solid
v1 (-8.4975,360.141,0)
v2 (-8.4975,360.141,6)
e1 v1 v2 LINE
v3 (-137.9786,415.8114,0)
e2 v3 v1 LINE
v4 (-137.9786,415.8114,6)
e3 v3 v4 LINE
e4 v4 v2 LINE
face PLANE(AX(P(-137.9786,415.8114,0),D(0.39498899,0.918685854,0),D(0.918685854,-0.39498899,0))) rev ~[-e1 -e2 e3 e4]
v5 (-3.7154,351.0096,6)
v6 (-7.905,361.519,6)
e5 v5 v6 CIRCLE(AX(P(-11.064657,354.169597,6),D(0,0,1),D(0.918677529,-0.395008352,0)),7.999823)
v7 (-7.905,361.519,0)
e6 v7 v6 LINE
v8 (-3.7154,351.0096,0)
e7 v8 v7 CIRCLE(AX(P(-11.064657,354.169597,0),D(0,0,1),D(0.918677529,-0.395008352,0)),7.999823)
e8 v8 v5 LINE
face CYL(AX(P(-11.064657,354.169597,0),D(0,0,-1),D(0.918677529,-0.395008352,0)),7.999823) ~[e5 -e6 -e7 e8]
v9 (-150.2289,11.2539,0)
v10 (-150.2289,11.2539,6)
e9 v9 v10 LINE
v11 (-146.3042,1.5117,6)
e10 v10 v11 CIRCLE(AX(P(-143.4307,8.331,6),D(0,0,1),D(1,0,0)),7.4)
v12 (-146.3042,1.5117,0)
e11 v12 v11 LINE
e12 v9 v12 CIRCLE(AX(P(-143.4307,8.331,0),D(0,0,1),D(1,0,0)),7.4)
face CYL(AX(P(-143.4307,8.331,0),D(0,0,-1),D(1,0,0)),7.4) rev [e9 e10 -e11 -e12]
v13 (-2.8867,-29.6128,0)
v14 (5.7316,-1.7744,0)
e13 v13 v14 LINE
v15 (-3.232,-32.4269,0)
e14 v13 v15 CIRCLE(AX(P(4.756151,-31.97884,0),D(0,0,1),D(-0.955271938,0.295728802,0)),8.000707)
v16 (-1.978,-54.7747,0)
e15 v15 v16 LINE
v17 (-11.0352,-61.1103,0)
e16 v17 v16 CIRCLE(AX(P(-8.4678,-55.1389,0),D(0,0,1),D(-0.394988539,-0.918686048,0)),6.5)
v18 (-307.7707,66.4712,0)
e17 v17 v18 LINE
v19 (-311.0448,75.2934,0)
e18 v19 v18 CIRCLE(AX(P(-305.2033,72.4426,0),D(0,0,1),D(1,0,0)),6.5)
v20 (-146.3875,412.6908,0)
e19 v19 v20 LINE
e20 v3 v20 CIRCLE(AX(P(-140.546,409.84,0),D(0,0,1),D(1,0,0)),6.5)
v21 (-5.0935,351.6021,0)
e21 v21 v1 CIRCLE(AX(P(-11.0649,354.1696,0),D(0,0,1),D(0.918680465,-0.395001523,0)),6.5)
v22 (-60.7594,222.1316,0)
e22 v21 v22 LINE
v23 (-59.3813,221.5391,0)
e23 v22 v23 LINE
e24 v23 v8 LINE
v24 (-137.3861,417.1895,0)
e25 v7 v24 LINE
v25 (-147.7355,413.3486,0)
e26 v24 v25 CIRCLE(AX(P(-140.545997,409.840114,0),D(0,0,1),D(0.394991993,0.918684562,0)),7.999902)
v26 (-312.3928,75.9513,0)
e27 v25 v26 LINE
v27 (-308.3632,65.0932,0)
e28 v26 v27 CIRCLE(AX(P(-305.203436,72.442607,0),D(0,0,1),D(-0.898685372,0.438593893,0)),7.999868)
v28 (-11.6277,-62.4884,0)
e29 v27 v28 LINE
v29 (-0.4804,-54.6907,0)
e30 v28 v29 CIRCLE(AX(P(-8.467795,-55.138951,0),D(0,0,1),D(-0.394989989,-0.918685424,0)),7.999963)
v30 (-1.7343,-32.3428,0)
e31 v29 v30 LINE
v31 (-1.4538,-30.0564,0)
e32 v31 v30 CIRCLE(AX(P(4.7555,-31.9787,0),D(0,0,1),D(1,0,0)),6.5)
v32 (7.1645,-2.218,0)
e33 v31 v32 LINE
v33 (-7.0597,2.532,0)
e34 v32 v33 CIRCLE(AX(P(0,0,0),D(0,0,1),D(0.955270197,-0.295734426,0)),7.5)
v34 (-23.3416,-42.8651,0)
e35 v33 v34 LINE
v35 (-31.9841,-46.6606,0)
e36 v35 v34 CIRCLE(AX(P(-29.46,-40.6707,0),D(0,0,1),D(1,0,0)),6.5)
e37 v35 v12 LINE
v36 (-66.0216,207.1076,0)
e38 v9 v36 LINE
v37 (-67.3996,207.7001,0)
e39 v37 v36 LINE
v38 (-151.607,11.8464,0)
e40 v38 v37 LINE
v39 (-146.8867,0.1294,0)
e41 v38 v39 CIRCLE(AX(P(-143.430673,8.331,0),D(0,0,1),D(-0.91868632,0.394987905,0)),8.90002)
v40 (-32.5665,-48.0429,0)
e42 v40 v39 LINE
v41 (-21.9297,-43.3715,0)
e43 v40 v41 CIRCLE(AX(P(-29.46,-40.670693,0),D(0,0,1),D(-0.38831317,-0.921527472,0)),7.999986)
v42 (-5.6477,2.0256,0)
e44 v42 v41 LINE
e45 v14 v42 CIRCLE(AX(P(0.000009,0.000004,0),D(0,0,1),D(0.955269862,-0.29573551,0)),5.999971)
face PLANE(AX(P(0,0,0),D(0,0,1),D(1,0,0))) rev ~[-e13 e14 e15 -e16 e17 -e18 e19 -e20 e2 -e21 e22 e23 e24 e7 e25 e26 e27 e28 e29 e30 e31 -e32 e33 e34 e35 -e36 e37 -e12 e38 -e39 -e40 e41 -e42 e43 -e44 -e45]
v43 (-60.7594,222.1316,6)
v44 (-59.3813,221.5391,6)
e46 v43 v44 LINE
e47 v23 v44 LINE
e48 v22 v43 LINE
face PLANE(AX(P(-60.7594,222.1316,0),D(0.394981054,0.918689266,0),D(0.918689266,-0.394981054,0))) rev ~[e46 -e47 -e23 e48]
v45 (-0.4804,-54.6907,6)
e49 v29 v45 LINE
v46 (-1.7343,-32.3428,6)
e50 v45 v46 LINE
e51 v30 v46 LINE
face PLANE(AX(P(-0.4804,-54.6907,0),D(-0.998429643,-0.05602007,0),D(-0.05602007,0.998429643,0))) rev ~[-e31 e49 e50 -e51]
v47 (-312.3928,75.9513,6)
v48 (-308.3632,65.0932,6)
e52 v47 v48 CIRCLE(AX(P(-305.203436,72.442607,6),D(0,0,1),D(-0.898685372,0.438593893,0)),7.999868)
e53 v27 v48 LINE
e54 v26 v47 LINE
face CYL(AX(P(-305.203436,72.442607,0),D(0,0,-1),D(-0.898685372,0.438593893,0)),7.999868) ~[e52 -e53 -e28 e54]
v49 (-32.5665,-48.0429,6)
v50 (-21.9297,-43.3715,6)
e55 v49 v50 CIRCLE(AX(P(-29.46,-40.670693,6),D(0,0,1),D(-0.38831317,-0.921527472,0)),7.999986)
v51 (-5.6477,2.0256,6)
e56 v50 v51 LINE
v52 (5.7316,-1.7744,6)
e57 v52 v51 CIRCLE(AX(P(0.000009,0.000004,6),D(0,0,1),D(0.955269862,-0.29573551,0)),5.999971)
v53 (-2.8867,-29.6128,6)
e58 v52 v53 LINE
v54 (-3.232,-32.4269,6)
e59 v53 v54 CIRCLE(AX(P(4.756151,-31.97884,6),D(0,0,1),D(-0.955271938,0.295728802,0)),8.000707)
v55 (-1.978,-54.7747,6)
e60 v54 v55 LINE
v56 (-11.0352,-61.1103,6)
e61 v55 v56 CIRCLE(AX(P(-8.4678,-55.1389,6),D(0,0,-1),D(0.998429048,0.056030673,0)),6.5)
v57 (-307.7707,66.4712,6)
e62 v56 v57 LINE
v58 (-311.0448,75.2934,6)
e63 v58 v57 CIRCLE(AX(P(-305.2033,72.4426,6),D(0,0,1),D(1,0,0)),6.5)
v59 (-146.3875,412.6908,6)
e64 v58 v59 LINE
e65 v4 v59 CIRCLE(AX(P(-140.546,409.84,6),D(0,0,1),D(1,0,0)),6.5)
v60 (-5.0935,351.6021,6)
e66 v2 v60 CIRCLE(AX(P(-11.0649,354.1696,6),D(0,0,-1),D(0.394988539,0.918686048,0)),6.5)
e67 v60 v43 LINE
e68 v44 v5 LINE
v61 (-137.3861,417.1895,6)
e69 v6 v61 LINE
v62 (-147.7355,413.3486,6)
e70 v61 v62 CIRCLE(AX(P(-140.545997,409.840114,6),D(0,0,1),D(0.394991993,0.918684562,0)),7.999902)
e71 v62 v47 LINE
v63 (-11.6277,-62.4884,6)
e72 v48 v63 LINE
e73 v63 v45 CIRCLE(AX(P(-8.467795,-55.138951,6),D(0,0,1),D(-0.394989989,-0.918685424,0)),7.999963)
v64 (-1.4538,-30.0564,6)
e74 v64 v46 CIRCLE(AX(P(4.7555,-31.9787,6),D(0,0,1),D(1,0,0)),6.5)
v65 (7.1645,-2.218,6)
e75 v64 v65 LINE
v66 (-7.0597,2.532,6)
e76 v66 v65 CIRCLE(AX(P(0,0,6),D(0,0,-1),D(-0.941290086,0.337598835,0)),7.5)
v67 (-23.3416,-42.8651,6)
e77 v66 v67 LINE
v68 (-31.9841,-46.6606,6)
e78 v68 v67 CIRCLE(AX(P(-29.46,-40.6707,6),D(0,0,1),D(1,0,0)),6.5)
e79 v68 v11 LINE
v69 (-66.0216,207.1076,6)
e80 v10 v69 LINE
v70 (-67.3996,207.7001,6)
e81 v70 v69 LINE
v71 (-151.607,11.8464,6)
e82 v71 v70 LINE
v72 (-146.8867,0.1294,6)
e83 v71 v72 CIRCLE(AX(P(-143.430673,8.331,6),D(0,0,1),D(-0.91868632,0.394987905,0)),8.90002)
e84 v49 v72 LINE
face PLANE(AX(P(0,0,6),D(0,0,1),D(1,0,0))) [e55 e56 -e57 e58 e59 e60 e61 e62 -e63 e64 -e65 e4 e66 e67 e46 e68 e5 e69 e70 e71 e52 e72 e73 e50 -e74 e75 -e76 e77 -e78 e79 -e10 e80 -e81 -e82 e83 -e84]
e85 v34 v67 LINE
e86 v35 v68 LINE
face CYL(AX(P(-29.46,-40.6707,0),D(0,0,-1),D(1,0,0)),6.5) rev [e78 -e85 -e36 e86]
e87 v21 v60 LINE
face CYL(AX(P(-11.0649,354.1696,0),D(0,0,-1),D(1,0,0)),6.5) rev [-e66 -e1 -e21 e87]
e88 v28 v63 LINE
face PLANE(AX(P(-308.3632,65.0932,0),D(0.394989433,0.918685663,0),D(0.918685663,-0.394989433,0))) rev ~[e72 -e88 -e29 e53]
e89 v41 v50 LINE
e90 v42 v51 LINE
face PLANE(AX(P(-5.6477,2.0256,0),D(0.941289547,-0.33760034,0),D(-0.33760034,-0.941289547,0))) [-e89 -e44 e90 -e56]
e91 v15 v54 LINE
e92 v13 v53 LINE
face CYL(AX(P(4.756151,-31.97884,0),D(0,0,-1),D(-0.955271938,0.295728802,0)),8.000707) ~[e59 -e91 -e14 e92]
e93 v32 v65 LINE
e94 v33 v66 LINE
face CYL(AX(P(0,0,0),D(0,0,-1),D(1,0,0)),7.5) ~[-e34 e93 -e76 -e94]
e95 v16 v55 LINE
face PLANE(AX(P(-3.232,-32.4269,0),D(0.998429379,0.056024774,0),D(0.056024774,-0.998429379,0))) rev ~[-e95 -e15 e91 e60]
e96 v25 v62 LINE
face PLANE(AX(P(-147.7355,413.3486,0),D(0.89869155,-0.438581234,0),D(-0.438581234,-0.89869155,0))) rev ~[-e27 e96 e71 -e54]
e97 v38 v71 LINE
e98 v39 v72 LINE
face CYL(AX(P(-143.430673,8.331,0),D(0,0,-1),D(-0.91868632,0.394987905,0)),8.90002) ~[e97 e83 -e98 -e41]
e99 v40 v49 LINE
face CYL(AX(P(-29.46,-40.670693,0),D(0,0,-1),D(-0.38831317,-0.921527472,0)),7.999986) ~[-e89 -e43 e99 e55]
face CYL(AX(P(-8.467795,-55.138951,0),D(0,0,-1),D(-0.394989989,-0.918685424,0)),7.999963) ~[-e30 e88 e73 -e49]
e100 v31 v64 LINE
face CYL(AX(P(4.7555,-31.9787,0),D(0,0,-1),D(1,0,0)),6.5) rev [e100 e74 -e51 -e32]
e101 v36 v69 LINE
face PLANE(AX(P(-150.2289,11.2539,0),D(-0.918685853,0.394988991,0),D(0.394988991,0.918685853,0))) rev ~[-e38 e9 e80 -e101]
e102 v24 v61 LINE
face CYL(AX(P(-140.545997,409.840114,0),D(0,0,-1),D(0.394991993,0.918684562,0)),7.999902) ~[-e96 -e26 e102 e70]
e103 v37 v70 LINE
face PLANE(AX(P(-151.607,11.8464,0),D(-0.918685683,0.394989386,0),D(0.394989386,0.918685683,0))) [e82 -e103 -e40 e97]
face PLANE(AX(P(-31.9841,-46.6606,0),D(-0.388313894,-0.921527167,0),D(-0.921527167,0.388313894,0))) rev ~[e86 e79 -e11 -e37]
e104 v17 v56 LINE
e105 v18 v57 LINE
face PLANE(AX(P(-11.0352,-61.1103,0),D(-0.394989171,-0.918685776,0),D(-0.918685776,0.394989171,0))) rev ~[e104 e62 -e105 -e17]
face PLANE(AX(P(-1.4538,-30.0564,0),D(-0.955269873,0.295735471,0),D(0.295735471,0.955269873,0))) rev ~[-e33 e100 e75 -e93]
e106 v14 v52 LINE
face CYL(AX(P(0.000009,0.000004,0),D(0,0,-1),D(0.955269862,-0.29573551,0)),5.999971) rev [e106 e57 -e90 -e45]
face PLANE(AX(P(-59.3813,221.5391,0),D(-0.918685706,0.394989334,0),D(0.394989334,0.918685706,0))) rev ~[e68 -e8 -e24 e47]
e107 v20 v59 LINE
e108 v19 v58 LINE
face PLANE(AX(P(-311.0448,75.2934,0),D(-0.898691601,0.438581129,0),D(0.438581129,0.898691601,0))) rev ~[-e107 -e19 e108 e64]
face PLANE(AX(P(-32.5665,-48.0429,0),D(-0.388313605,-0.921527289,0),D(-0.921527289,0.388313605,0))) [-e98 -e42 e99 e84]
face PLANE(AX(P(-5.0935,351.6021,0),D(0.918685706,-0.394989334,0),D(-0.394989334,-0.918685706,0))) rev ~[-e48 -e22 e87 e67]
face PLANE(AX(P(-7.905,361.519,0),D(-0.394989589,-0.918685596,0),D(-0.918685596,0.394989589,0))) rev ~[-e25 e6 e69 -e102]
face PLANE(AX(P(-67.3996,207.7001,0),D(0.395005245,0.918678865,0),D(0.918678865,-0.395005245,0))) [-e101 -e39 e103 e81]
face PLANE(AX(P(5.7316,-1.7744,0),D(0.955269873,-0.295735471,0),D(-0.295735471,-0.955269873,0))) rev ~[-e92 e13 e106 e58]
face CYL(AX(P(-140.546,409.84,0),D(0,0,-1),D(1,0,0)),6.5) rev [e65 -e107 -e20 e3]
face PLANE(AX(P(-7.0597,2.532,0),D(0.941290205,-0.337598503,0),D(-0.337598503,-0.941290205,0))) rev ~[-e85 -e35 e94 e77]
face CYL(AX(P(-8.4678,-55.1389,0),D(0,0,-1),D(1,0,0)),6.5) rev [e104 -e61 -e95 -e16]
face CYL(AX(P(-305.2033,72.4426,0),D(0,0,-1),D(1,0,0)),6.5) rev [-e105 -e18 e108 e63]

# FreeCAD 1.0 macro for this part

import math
import FreeCAD as App
import Part
import Sketcher

V = App.Vector

doc = App.newDocument("Part")
body = doc.addObject("PartDesign::Body", "Body")

sketch1 = body.newObject("Sketcher::SketchObject", "Sketch")
sketch1.AttachmentSupport = (doc.getObject("XY_Plane"), [""])
sketch1.MapMode = "FlatFace"
sketch1.addGeometry([
    Part.ArcOfCircle(Part.Circle(V(0, 0, 0), V(0, 0, 1), 7.5), math.radians(-17.201582), math.radians(160.269351)),
    Part.LineSegment(V(-7.0597, 2.532, 0), V(-23.3416, -42.8651, 0)),
    Part.ArcOfCircle(Part.Circle(V(-29.46, -40.6707, 0), V(0, 0, 1), 6.5), math.radians(-112.850201), math.radians(-19.730669)),
    Part.LineSegment(V(-31.9841, -46.6606, 0), V(-146.3042, 1.5117, 0)),
    Part.ArcOfCircle(Part.Circle(V(-143.4307, 8.331, 0), V(0, 0, 1), 7.4), math.radians(156.734614), math.radians(247.150534)),
    Part.LineSegment(V(-150.2289, 11.2539, 0), V(-66.0216, 207.1076, 0)),
    Part.LineSegment(V(-66.0216, 207.1076, 0), V(-67.3996, 207.7001, 0)),
    Part.LineSegment(V(-67.3996, 207.7001, 0), V(-151.607, 11.8464, 0)),
    Part.ArcOfCircle(Part.Circle(V(-143.4307, 8.331, 0), V(0, 0, 1), 8.899995), math.radians(156.734714), math.radians(247.150357)),
    Part.LineSegment(V(-146.8867, 0.1294, 0), V(-32.5665, -48.0429, 0)),
    Part.ArcOfCircle(Part.Circle(V(-29.46, -40.6707, 0), V(0, 0, 1), 7.99998), math.radians(-112.8496), math.radians(-19.730762)),
    Part.LineSegment(V(-21.9297, -43.3715, 0), V(-5.6477, 2.0256, 0)),
    Part.ArcOfCircle(Part.Circle(V(0, 0, 0), V(0, 0, 1), 5.999978), math.radians(-17.201582), math.radians(160.269157)),
    Part.LineSegment(V(5.7316, -1.7744, 0), V(-2.8867, -29.6128, 0)),
    Part.ArcOfCircle(Part.Circle(V(4.7555, -31.9787, 0), V(0, 0, 1), 8.000044), math.radians(162.798331), math.radians(183.211652)),
    Part.LineSegment(V(-3.232, -32.4269, 0), V(-1.978, -54.7747, 0)),
    Part.ArcOfCircle(Part.Circle(V(-8.4678, -55.1389, 0), V(0, 0, 1), 6.5), math.radians(-113.265259), math.radians(3.212003)),
    Part.LineSegment(V(-11.0352, -61.1103, 0), V(-307.7707, 66.4712, 0)),
    Part.ArcOfCircle(Part.Circle(V(-305.2033, 72.4426, 0), V(0, 0, 1), 6.5), math.radians(153.986452), math.radians(246.734741)),
    Part.LineSegment(V(-311.0448, 75.2934, 0), V(-146.3875, 412.6908, 0)),
    Part.ArcOfCircle(Part.Circle(V(-140.546, 409.84, 0), V(0, 0, 1), 6.5), math.radians(66.734741), math.radians(153.986452)),
    Part.LineSegment(V(-137.9786, 415.8114, 0), V(-8.4975, 360.141, 0)),
    Part.ArcOfCircle(Part.Circle(V(-11.0649, 354.1696, 0), V(0, 0, 1), 6.5), math.radians(-23.266069), math.radians(66.734741)),
    Part.LineSegment(V(-5.0935, 351.6021, 0), V(-60.7594, 222.1316, 0)),
    Part.LineSegment(V(-60.7594, 222.1316, 0), V(-59.3813, 221.5391, 0)),
    Part.LineSegment(V(-59.3813, 221.5391, 0), V(-3.7154, 351.0096, 0)),
    Part.ArcOfCircle(Part.Circle(V(-11.0649, 354.1696, 0), V(0, 0, 1), 8.000047), math.radians(-23.26583), math.radians(66.734545)),
    Part.LineSegment(V(-7.905, 361.519, 0), V(-137.3861, 417.1895, 0)),
    Part.ArcOfCircle(Part.Circle(V(-140.546, 409.84, 0), V(0, 0, 1), 8.000007), math.radians(66.734828), math.radians(153.986826)),
    Part.LineSegment(V(-147.7355, 413.3486, 0), V(-312.3928, 75.9513, 0)),
    Part.ArcOfCircle(Part.Circle(V(-305.2033, 72.4426, 0), V(0, 0, 1), 7.999993), math.radians(153.986182), math.radians(246.734545)),
    Part.LineSegment(V(-308.3632, 65.0932, 0), V(-11.6277, -62.4884, 0)),
    Part.ArcOfCircle(Part.Circle(V(-8.4678, -55.1389, 0), V(0, 0, 1), 8.000007), math.radians(-113.265172), math.radians(3.211692)),
    Part.LineSegment(V(-0.4804, -54.6907, 0), V(-1.7343, -32.3428, 0)),
    Part.ArcOfCircle(Part.Circle(V(4.7555, -31.9787, 0), V(0, 0, 1), 6.5), math.radians(162.798311), math.radians(183.211123)),
    Part.LineSegment(V(-1.4538, -30.0564, 0), V(7.1645, -2.218, 0)),
], False)
sketch1.addConstraint([
    Sketcher.Constraint("Coincident", 0, 2, 1, 1),
    Sketcher.Constraint("Coincident", 1, 2, 2, 2),
    Sketcher.Constraint("Coincident", 2, 1, 3, 1),
    Sketcher.Constraint("Coincident", 3, 2, 4, 2),
    Sketcher.Constraint("Coincident", 4, 1, 5, 1),
    Sketcher.Constraint("Coincident", 5, 2, 6, 1),
    Sketcher.Constraint("Coincident", 6, 2, 7, 1),
    Sketcher.Constraint("Coincident", 7, 2, 8, 1),
    Sketcher.Constraint("Coincident", 8, 2, 9, 1),
    Sketcher.Constraint("Coincident", 9, 2, 10, 1),
    Sketcher.Constraint("Coincident", 10, 2, 11, 1),
    Sketcher.Constraint("Coincident", 11, 2, 12, 2),
    Sketcher.Constraint("Coincident", 12, 1, 13, 1),
    Sketcher.Constraint("Coincident", 13, 2, 14, 1),
    Sketcher.Constraint("Coincident", 14, 2, 15, 1),
    Sketcher.Constraint("Coincident", 15, 2, 16, 2),
    Sketcher.Constraint("Coincident", 16, 1, 17, 1),
    Sketcher.Constraint("Coincident", 17, 2, 18, 2),
    Sketcher.Constraint("Coincident", 18, 1, 19, 1),
    Sketcher.Constraint("Coincident", 19, 2, 20, 2),
    Sketcher.Constraint("Coincident", 20, 1, 21, 1),
    Sketcher.Constraint("Coincident", 21, 2, 22, 2),
    Sketcher.Constraint("Coincident", 22, 1, 23, 1),
    Sketcher.Constraint("Coincident", 23, 2, 24, 1),
    Sketcher.Constraint("Coincident", 24, 2, 25, 1),
    Sketcher.Constraint("Coincident", 25, 2, 26, 1),
    Sketcher.Constraint("Coincident", 26, 2, 27, 1),
    Sketcher.Constraint("Coincident", 27, 2, 28, 1),
    Sketcher.Constraint("Coincident", 28, 2, 29, 1),
    Sketcher.Constraint("Coincident", 29, 2, 30, 1),
    Sketcher.Constraint("Coincident", 30, 2, 31, 1),
    Sketcher.Constraint("Coincident", 31, 2, 32, 1),
    Sketcher.Constraint("Coincident", 32, 2, 33, 1),
    Sketcher.Constraint("Coincident", 33, 2, 34, 2),
    Sketcher.Constraint("Coincident", 34, 1, 35, 1),
    Sketcher.Constraint("Coincident", 35, 2, 0, 1),
    Sketcher.Constraint("Coincident", 0, 3, -1, 1),
    Sketcher.Constraint("Coincident", 12, 3, -1, 1),
    Sketcher.Constraint("Coincident", 8, 3, 4, 3),
    Sketcher.Constraint("Coincident", 10, 3, 2, 3),
    Sketcher.Constraint("Coincident", 26, 3, 22, 3),
    Sketcher.Constraint("Coincident", 28, 3, 20, 3),
    Sketcher.Constraint("Coincident", 30, 3, 18, 3),
    Sketcher.Constraint("Coincident", 32, 3, 16, 3),
    Sketcher.Constraint("Coincident", 34, 3, 14, 3),
    Sketcher.Constraint("Radius", 12, 6.0),
    Sketcher.Constraint("Radius", 10, 8.0),
    Sketcher.Constraint("Radius", 14, 8.0),
    Sketcher.Constraint("Radius", 26, 8.0),
    Sketcher.Constraint("Radius", 28, 8.0),
    Sketcher.Constraint("Radius", 30, 8.0),
    Sketcher.Constraint("Radius", 32, 8.0),
    Sketcher.Constraint("Distance", 6, 1.5),
    Sketcher.Constraint("Distance", 24, 1.5),
    Sketcher.Constraint("Radius", 0, 7.5),
    Sketcher.Constraint("Radius", 2, 6.5),
    Sketcher.Constraint("Radius", 4, 7.4),
    Sketcher.Constraint("Radius", 8, 8.9),
    Sketcher.Constraint("Radius", 16, 6.5),
    Sketcher.Constraint("Radius", 18, 6.5),
    Sketcher.Constraint("Radius", 20, 6.5),
    Sketcher.Constraint("Radius", 22, 6.5),
    Sketcher.Constraint("Radius", 34, 6.5),
    Sketcher.Constraint("Distance", 17, 323.0),
    Sketcher.Constraint("Distance", 31, 323.0),
    Sketcher.Constraint("DistanceY", -1, 1, 6, 2, 207.7),
    Sketcher.Constraint("DistanceY", 12, 1, 11, 2, 3.8),
    Sketcher.Constraint("DistanceX", 2, 3, -1, 1, 29.46),
    Sketcher.Constraint("DistanceY", -1, 1, 20, 3, 409.84),
    Sketcher.Constraint("DistanceY", 2, 1, 2, 3, 5.99),
    Sketcher.Constraint("DistanceX", 3, 2, 2, 1, 114.32),
    Sketcher.Constraint("DistanceY", 25, 2, 22, 3, 3.16),
    Sketcher.Constraint("DistanceX", 22, 3, 26, 2, 3.16),
    Sketcher.Constraint("DistanceX", 20, 3, 27, 2, 3.16),
    Sketcher.Constraint("DistanceY", 17, 2, 29, 2, 9.48),
    Sketcher.Constraint("DistanceX", 30, 2, 18, 3, 3.16),
    Sketcher.Constraint("DistanceX", 31, 2, 16, 3, 3.16),
    Sketcher.Constraint("DistanceY", 33, 2, 13, 2, 2.73),
    Sketcher.Constraint("DistanceY", 35, 2, 0, 2, 4.75),
    Sketcher.Constraint("Distance", 3, 124.055),
    Sketcher.Constraint("Distance", 5, 213.189),
    Sketcher.Constraint("Distance", 7, 213.189),
    Sketcher.Constraint("Distance", 13, 29.142),
    Sketcher.Constraint("Distance", 15, 22.383),
    Sketcher.Constraint("Distance", 33, 22.383),
    Sketcher.Constraint("Distance", 35, 29.142),
    Sketcher.Constraint("DistanceY", -1, 1, 4, 3, 8.331),
    Sketcher.Constraint("DistanceY", 16, 3, -1, 1, 55.139),
    Sketcher.Constraint("DistanceX", 20, 3, -1, 1, 140.546),
    Sketcher.Constraint("DistanceX", 22, 3, -1, 1, 11.065),
    Sketcher.Constraint("DistanceY", -1, 1, 0, 2, 2.532),
    Sketcher.Constraint("DistanceY", 1, 2, -1, 1, 42.865),
    Sketcher.Constraint("DistanceX", 4, 1, -1, 1, 150.229),
    Sketcher.Constraint("DistanceY", -1, 1, 4, 1, 11.254),
    Sketcher.Constraint("DistanceX", 7, 2, -1, 1, 151.607),
    Sketcher.Constraint("DistanceY", 9, 2, -1, 1, 48.043),
    Sketcher.Constraint("DistanceX", 14, 2, -1, 1, 3.232),
    Sketcher.Constraint("DistanceY", 14, 2, -1, 1, 32.427),
    Sketcher.Constraint("DistanceX", 15, 2, -1, 1, 1.978),
    Sketcher.Constraint("DistanceY", -1, 1, 21, 2, 360.141),
    Sketcher.Constraint("DistanceY", -1, 1, 22, 1, 351.602),
    Sketcher.Constraint("DistanceY", -1, 1, 24, 2, 221.539),
    Sketcher.Constraint("DistanceY", 2, 3, 14, 3, 8.692),
    Sketcher.Constraint("DistanceY", 5, 2, 22, 3, 147.062),
    Sketcher.Constraint("DistanceX", 8, 2, 4, 3, 3.456),
    Sketcher.Constraint("DistanceX", 1, 2, 10, 2, 1.412),
    Sketcher.Constraint("DistanceX", 0, 2, 11, 2, 1.412),
    Sketcher.Constraint("DistanceX", 17, 2, 8, 2, 160.884),
    Sketcher.Constraint("DistanceX", 18, 1, 17, 2, 3.274),
    Sketcher.Constraint("DistanceY", 7, 2, 18, 1, 63.447),
    Sketcher.Constraint("DistanceX", 19, 2, 6, 2, 78.988),
    Sketcher.Constraint("DistanceX", 19, 2, 20, 1, 8.409),
    Sketcher.Constraint("DistanceY", 5, 2, 23, 2, 15.024),
    Sketcher.Constraint("DistanceX", 23, 2, 22, 1, 55.666),
    Sketcher.Constraint("DistanceX", 28, 2, 19, 2, 1.348),
])
pad1 = body.newObject("PartDesign::Pad", "Pad")
pad1.Profile = sketch1
pad1.Length = 6

doc.recompute()
